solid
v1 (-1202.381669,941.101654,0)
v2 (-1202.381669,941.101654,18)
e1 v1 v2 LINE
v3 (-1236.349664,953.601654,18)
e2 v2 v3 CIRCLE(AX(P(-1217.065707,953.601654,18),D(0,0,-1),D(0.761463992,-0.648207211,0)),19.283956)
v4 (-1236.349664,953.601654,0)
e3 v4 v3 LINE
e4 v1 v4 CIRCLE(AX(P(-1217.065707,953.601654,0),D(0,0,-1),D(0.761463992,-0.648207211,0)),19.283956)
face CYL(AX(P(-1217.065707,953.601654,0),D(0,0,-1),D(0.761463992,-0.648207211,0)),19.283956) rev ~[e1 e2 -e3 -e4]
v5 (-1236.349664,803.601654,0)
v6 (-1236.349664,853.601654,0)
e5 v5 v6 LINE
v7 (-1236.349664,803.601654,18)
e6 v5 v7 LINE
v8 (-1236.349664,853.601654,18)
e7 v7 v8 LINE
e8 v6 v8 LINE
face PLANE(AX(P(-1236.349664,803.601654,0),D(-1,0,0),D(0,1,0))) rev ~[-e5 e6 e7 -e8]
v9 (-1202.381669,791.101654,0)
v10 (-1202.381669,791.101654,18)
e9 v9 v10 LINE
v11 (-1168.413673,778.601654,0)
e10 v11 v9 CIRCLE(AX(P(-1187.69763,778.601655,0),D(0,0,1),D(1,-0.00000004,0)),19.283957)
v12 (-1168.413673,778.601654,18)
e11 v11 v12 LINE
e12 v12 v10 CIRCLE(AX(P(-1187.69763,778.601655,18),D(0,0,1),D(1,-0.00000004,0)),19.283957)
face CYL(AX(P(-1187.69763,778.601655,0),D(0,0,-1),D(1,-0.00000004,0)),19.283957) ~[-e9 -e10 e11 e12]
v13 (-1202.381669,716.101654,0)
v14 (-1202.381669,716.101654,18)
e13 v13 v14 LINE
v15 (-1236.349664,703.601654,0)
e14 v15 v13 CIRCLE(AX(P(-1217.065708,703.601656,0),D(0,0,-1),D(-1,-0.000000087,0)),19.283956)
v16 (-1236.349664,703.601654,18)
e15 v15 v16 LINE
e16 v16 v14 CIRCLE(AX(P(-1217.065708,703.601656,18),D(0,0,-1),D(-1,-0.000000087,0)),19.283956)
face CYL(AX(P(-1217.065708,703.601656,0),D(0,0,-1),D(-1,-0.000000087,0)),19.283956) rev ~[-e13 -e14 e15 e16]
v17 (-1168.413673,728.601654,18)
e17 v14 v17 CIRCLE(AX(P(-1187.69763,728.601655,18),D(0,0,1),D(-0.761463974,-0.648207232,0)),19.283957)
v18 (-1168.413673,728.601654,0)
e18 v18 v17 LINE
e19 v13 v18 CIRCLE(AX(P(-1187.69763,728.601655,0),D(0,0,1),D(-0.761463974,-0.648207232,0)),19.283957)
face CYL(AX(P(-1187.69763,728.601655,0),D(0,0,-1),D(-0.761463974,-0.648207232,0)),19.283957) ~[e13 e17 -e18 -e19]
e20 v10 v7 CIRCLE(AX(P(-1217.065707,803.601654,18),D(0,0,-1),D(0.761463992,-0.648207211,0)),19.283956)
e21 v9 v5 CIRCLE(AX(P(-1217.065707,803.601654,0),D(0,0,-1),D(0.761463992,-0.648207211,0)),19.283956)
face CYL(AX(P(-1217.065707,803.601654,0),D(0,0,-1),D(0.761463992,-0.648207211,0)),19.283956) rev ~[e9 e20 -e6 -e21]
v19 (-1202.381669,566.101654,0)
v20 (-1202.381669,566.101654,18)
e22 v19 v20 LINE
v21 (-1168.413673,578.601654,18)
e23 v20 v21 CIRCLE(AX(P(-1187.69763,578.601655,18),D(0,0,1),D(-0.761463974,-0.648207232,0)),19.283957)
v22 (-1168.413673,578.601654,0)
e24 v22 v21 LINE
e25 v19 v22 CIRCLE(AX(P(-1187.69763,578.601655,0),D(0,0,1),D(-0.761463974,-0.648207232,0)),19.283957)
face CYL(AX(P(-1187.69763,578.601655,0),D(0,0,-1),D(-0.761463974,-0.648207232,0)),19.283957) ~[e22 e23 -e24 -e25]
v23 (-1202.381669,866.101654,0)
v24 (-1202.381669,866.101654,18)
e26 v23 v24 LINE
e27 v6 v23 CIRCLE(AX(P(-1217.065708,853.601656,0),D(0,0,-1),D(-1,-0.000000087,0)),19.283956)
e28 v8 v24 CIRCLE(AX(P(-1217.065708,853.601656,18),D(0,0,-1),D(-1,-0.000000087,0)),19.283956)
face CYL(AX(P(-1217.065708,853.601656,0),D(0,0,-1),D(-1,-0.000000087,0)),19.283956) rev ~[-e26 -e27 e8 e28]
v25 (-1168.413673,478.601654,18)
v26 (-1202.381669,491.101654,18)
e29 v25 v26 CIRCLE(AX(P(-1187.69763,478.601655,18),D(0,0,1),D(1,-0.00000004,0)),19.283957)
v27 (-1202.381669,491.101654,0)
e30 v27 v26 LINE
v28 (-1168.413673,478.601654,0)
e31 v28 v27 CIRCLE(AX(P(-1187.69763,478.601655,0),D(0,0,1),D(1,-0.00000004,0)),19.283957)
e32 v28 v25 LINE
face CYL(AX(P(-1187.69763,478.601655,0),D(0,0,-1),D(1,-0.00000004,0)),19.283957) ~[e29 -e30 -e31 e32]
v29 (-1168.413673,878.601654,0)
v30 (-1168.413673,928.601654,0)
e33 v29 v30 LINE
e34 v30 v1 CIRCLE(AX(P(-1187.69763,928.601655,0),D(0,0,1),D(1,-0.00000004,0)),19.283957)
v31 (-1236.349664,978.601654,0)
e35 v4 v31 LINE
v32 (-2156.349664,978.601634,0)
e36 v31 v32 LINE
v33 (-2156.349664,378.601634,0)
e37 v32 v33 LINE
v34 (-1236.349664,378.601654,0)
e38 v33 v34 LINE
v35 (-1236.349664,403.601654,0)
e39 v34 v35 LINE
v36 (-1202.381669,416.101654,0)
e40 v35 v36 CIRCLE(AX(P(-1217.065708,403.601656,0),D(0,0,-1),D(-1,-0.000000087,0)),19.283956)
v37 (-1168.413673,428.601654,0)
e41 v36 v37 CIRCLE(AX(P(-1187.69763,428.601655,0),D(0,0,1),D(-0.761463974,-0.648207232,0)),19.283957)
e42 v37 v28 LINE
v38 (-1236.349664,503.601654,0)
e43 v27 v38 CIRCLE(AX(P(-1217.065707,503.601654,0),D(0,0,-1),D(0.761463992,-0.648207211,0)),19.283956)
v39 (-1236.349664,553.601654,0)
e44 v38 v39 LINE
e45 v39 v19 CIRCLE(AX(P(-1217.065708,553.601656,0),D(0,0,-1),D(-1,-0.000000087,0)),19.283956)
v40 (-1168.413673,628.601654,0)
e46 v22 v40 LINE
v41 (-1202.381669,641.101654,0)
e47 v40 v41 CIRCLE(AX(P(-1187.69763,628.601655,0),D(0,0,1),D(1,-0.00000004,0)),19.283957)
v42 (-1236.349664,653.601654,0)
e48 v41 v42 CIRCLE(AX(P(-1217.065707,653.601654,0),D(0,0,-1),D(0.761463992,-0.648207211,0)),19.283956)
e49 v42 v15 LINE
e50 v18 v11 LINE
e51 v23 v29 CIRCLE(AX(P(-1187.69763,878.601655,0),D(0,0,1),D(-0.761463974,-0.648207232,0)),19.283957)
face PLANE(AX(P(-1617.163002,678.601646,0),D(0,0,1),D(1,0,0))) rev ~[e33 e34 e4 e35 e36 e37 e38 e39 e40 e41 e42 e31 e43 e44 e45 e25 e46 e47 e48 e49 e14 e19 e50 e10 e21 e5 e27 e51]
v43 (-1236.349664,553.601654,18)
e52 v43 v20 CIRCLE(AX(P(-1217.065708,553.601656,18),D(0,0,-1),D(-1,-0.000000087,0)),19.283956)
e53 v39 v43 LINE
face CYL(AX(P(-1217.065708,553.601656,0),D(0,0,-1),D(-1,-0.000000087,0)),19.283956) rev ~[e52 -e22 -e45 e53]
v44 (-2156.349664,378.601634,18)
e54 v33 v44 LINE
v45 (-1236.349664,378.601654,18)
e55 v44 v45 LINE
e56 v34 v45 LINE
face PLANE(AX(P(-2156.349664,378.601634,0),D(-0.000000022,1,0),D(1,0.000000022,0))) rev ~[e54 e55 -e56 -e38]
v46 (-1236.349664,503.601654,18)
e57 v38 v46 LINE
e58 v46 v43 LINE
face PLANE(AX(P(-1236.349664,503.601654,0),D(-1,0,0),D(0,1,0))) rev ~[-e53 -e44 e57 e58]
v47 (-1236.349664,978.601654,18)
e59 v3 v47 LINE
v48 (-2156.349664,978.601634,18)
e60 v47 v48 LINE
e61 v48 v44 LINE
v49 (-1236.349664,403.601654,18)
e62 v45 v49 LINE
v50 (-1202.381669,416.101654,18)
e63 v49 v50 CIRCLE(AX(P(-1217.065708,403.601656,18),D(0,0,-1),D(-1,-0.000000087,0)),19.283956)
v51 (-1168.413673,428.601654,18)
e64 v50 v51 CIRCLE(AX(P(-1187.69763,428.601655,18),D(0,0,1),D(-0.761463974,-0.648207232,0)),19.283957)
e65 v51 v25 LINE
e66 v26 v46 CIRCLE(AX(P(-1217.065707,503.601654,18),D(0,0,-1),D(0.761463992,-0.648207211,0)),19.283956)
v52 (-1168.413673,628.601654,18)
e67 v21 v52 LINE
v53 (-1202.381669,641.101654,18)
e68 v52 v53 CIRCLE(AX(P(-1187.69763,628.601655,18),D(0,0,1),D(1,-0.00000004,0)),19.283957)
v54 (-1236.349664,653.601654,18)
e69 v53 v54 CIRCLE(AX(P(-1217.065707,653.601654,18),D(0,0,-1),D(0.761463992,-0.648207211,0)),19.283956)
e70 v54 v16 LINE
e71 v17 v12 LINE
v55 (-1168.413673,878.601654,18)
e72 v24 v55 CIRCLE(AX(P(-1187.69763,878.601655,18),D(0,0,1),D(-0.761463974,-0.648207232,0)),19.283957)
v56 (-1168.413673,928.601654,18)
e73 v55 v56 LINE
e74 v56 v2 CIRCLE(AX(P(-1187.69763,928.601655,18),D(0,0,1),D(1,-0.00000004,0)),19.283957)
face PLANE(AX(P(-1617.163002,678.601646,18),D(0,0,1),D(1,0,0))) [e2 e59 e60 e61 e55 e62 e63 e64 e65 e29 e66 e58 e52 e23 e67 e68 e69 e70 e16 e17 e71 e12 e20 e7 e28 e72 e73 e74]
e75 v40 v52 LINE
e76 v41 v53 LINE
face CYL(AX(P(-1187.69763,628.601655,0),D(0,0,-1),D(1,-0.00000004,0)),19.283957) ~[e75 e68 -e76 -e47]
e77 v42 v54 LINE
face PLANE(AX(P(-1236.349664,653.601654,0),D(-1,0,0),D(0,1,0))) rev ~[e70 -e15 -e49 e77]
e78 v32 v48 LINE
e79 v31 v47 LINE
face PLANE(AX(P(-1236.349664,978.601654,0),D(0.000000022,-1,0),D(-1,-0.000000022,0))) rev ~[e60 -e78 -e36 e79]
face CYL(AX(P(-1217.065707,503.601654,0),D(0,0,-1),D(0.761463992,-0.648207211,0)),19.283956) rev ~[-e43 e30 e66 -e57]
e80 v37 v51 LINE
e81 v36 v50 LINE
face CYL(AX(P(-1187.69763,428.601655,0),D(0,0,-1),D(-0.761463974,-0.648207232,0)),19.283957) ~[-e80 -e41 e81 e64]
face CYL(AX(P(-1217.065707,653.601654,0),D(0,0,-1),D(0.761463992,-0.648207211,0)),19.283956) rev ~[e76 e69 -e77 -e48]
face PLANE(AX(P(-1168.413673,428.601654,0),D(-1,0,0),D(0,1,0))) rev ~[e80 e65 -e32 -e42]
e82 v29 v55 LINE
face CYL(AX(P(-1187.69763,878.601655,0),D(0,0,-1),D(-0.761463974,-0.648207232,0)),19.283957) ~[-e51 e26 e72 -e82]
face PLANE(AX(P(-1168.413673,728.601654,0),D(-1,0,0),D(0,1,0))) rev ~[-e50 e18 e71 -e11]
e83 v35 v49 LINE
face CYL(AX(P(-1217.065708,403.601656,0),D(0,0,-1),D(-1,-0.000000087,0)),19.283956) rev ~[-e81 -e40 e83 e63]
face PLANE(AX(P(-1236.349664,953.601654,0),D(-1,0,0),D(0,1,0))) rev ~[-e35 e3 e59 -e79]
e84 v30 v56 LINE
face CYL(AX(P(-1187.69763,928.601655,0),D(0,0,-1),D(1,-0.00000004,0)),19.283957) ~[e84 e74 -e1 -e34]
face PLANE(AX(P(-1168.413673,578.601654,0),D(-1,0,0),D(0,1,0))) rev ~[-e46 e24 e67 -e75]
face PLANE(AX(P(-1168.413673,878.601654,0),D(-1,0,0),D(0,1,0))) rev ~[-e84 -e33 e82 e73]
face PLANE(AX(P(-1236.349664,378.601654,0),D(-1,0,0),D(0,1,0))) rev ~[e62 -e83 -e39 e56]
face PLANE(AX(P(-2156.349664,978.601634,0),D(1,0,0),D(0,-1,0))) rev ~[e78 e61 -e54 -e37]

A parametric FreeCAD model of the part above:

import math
import FreeCAD as App
import Part
import Sketcher
Q = App.Units.Quantity

doc = App.newDocument("Part")
body = doc.addObject("PartDesign::Body", "Body")

sketch1 = doc.addObject("Sketcher::SketchObject", "Sketch")
body.addObject(sketch1)
sketch1.AttachmentSupport = (doc.XY_Plane, [""])
sketch1.MapMode = "FlatFace"
sketch1.addGeometry(Part.LineSegment(App.Vector(-1236, 979, 0), App.Vector(-2156, 979, 0)), False)
sketch1.addGeometry(Part.LineSegment(App.Vector(-2156, 979, 0), App.Vector(-2156, 379, 0)), False)
sketch1.addGeometry(Part.LineSegment(App.Vector(-2156, 379, 0), App.Vector(-1236, 379, 0)), False)
sketch1.addGeometry(Part.LineSegment(App.Vector(-1236, 379, 0), App.Vector(-1236, 404, 0)), False)
sketch1.addGeometry(Part.ArcOfCircle(Part.Circle(App.Vector(-1217, 404, 0), App.Vector(0, 0, 1), 19), math.radians(40), math.radians(180)), False)
sketch1.addGeometry(Part.ArcOfCircle(Part.Circle(App.Vector(-1188, 429, 0), App.Vector(0, 0, 1), 19), math.radians(-140), math.radians(0)), False)
sketch1.addGeometry(Part.LineSegment(App.Vector(-1168, 429, 0), App.Vector(-1168, 479, 0)), False)
sketch1.addGeometry(Part.ArcOfCircle(Part.Circle(App.Vector(-1188, 479, 0), App.Vector(0, 0, 1), 19), math.radians(0), math.radians(140)), False)
sketch1.addGeometry(Part.ArcOfCircle(Part.Circle(App.Vector(-1217, 504, 0), App.Vector(0, 0, 1), 19), math.radians(180), math.radians(320)), False)
sketch1.addGeometry(Part.LineSegment(App.Vector(-1236, 504, 0), App.Vector(-1236, 554, 0)), False)
sketch1.addGeometry(Part.ArcOfCircle(Part.Circle(App.Vector(-1217, 554, 0), App.Vector(0, 0, 1), 19), math.radians(40), math.radians(180)), False)
sketch1.addGeometry(Part.ArcOfCircle(Part.Circle(App.Vector(-1188, 579, 0), App.Vector(0, 0, 1), 19), math.radians(-140), math.radians(0)), False)
sketch1.addGeometry(Part.LineSegment(App.Vector(-1168, 579, 0), App.Vector(-1168, 629, 0)), False)
sketch1.addGeometry(Part.ArcOfCircle(Part.Circle(App.Vector(-1188, 629, 0), App.Vector(0, 0, 1), 19), math.radians(0), math.radians(140)), False)
sketch1.addGeometry(Part.ArcOfCircle(Part.Circle(App.Vector(-1217, 654, 0), App.Vector(0, 0, 1), 19), math.radians(180), math.radians(320)), False)
sketch1.addGeometry(Part.LineSegment(App.Vector(-1236, 654, 0), App.Vector(-1236, 704, 0)), False)
sketch1.addGeometry(Part.ArcOfCircle(Part.Circle(App.Vector(-1217, 704, 0), App.Vector(0, 0, 1), 19), math.radians(40), math.radians(180)), False)
sketch1.addGeometry(Part.ArcOfCircle(Part.Circle(App.Vector(-1188, 729, 0), App.Vector(0, 0, 1), 19), math.radians(-140), math.radians(0)), False)
sketch1.addGeometry(Part.LineSegment(App.Vector(-1168, 729, 0), App.Vector(-1168, 779, 0)), False)
sketch1.addGeometry(Part.ArcOfCircle(Part.Circle(App.Vector(-1188, 779, 0), App.Vector(0, 0, 1), 19), math.radians(0), math.radians(140)), False)
sketch1.addGeometry(Part.ArcOfCircle(Part.Circle(App.Vector(-1217, 804, 0), App.Vector(0, 0, 1), 19), math.radians(180), math.radians(320)), False)
sketch1.addGeometry(Part.LineSegment(App.Vector(-1236, 804, 0), App.Vector(-1236, 854, 0)), False)
sketch1.addGeometry(Part.ArcOfCircle(Part.Circle(App.Vector(-1217, 854, 0), App.Vector(0, 0, 1), 19), math.radians(40), math.radians(180)), False)
sketch1.addGeometry(Part.ArcOfCircle(Part.Circle(App.Vector(-1188, 879, 0), App.Vector(0, 0, 1), 19), math.radians(-140), math.radians(0)), False)
sketch1.addGeometry(Part.LineSegment(App.Vector(-1168, 879, 0), App.Vector(-1168, 929, 0)), False)
sketch1.addGeometry(Part.ArcOfCircle(Part.Circle(App.Vector(-1188, 929, 0), App.Vector(0, 0, 1), 19), math.radians(0), math.radians(140)), False)
sketch1.addGeometry(Part.ArcOfCircle(Part.Circle(App.Vector(-1217, 954, 0), App.Vector(0, 0, 1), 19), math.radians(180), math.radians(320)), False)
sketch1.addGeometry(Part.LineSegment(App.Vector(-1236, 954, 0), App.Vector(-1236, 979, 0)), False)
sketch1.addConstraint(Sketcher.Constraint("Coincident", 0, 2, 1, 1))
sketch1.addConstraint(Sketcher.Constraint("Coincident", 1, 2, 2, 1))
sketch1.addConstraint(Sketcher.Constraint("Coincident", 2, 2, 3, 1))
sketch1.addConstraint(Sketcher.Constraint("Tangent", 3, 2, 4, 2))
sketch1.addConstraint(Sketcher.Constraint("Tangent", 4, 1, 5, 1))
sketch1.addConstraint(Sketcher.Constraint("Tangent", 5, 2, 6, 1))
sketch1.addConstraint(Sketcher.Constraint("Tangent", 6, 2, 7, 1))
sketch1.addConstraint(Sketcher.Constraint("Tangent", 7, 2, 8, 2))
sketch1.addConstraint(Sketcher.Constraint("Tangent", 8, 1, 9, 1))
sketch1.addConstraint(Sketcher.Constraint("Tangent", 9, 2, 10, 2))
sketch1.addConstraint(Sketcher.Constraint("Tangent", 10, 1, 11, 1))
sketch1.addConstraint(Sketcher.Constraint("Tangent", 11, 2, 12, 1))
sketch1.addConstraint(Sketcher.Constraint("Tangent", 12, 2, 13, 1))
sketch1.addConstraint(Sketcher.Constraint("Tangent", 13, 2, 14, 2))
sketch1.addConstraint(Sketcher.Constraint("Tangent", 14, 1, 15, 1))
sketch1.addConstraint(Sketcher.Constraint("Tangent", 15, 2, 16, 2))
sketch1.addConstraint(Sketcher.Constraint("Tangent", 16, 1, 17, 1))
sketch1.addConstraint(Sketcher.Constraint("Tangent", 17, 2, 18, 1))
sketch1.addConstraint(Sketcher.Constraint("Tangent", 18, 2, 19, 1))
sketch1.addConstraint(Sketcher.Constraint("Tangent", 19, 2, 20, 2))
sketch1.addConstraint(Sketcher.Constraint("Tangent", 20, 1, 21, 1))
sketch1.addConstraint(Sketcher.Constraint("Tangent", 21, 2, 22, 2))
sketch1.addConstraint(Sketcher.Constraint("Tangent", 22, 1, 23, 1))
sketch1.addConstraint(Sketcher.Constraint("Tangent", 23, 2, 24, 1))
sketch1.addConstraint(Sketcher.Constraint("Tangent", 24, 2, 25, 1))
sketch1.addConstraint(Sketcher.Constraint("Tangent", 25, 2, 26, 2))
sketch1.addConstraint(Sketcher.Constraint("Tangent", 26, 1, 27, 1))
sketch1.addConstraint(Sketcher.Constraint("Coincident", 27, 2, 0, 1))
sketch1.addConstraint(Sketcher.Constraint("Vertical", 1))
sketch1.addConstraint(Sketcher.Constraint("Vertical", 3))
sketch1.addConstraint(Sketcher.Constraint("Vertical", 6))
sketch1.addConstraint(Sketcher.Constraint("Vertical", 9))
sketch1.addConstraint(Sketcher.Constraint("Vertical", 12))
sketch1.addConstraint(Sketcher.Constraint("Vertical", 15))
sketch1.addConstraint(Sketcher.Constraint("Vertical", 18))
sketch1.addConstraint(Sketcher.Constraint("Vertical", 21))
sketch1.addConstraint(Sketcher.Constraint("Vertical", 24))
sketch1.addConstraint(Sketcher.Constraint("Vertical", 27))
sketch1.addConstraint(Sketcher.Constraint("Equal", 4, 5))
sketch1.addConstraint(Sketcher.Constraint("Equal", 5, 7))
sketch1.addConstraint(Sketcher.Constraint("Equal", 7, 8))
sketch1.addConstraint(Sketcher.Constraint("Equal", 8, 10))
sketch1.addConstraint(Sketcher.Constraint("Equal", 10, 11))
sketch1.addConstraint(Sketcher.Constraint("Equal", 11, 13))
sketch1.addConstraint(Sketcher.Constraint("Equal", 13, 14))
sketch1.addConstraint(Sketcher.Constraint("Equal", 14, 16))
sketch1.addConstraint(Sketcher.Constraint("Equal", 16, 17))
sketch1.addConstraint(Sketcher.Constraint("Equal", 17, 19))
sketch1.addConstraint(Sketcher.Constraint("Equal", 19, 20))
sketch1.addConstraint(Sketcher.Constraint("Equal", 20, 22))
sketch1.addConstraint(Sketcher.Constraint("Equal", 22, 23))
sketch1.addConstraint(Sketcher.Constraint("Equal", 23, 25))
sketch1.addConstraint(Sketcher.Constraint("Equal", 25, 26))
sketch1.addConstraint(Sketcher.Constraint("Parallel", 0, 2))
sketch1.addConstraint(Sketcher.Constraint("Vertical", 4, 3, 8, 3))
sketch1.addConstraint(Sketcher.Constraint("Vertical", 7, 3, 11, 3))
sketch1.addConstraint(Sketcher.Constraint("Vertical", 10, 3, 14, 3))
sketch1.addConstraint(Sketcher.Constraint("Vertical", 13, 3, 17, 3))
sketch1.addConstraint(Sketcher.Constraint("Vertical", 16, 3, 20, 3))
sketch1.addConstraint(Sketcher.Constraint("Vertical", 19, 3, 23, 3))
sketch1.addConstraint(Sketcher.Constraint("Vertical", 22, 3, 26, 3))
sketch1.addConstraint(Sketcher.Constraint("Equal", 6, 9))
sketch1.addConstraint(Sketcher.Constraint("Equal", 9, 12))
sketch1.addConstraint(Sketcher.Constraint("Equal", 12, 15))
sketch1.addConstraint(Sketcher.Constraint("Equal", 15, 18))
sketch1.addConstraint(Sketcher.Constraint("Equal", 18, 21))
sketch1.addConstraint(Sketcher.Constraint("Equal", 21, 24))
sketch1.addConstraint(Sketcher.Constraint("Equal", 3, 27))
sketch1.addConstraint(Sketcher.Constraint("DistanceY", 1, 2, 1, 1, Q("600 mm")))
sketch1.addConstraint(Sketcher.Constraint("DistanceY", 3, 1, 3, 2, Q("25 mm")))
sketch1.addConstraint(Sketcher.Constraint("DistanceY", 6, 1, 6, 2, Q("50 mm")))
sketch1.addConstraint(Sketcher.Constraint("Angle", 0, Q("-179.999999 deg")))
sketch1.addConstraint(Sketcher.Constraint("Distance", 0, Q("920 mm")))
sketch1.addConstraint(Sketcher.Constraint("Radius", 4, Q("19.283956 mm")))
sketch1.addConstraint(Sketcher.Constraint("DistanceX", 5, 3, -1, 1, Q("1187.69763 mm")))
sketch1.addConstraint(Sketcher.Constraint("DistanceY", -1, 1, 4, 3, Q("403.601656 mm")))
pad1 = doc.addObject("PartDesign::Pad", "Pad")
body.addObject(pad1)
pad1.Profile = sketch1
pad1.Length = 18

doc.recompute()
